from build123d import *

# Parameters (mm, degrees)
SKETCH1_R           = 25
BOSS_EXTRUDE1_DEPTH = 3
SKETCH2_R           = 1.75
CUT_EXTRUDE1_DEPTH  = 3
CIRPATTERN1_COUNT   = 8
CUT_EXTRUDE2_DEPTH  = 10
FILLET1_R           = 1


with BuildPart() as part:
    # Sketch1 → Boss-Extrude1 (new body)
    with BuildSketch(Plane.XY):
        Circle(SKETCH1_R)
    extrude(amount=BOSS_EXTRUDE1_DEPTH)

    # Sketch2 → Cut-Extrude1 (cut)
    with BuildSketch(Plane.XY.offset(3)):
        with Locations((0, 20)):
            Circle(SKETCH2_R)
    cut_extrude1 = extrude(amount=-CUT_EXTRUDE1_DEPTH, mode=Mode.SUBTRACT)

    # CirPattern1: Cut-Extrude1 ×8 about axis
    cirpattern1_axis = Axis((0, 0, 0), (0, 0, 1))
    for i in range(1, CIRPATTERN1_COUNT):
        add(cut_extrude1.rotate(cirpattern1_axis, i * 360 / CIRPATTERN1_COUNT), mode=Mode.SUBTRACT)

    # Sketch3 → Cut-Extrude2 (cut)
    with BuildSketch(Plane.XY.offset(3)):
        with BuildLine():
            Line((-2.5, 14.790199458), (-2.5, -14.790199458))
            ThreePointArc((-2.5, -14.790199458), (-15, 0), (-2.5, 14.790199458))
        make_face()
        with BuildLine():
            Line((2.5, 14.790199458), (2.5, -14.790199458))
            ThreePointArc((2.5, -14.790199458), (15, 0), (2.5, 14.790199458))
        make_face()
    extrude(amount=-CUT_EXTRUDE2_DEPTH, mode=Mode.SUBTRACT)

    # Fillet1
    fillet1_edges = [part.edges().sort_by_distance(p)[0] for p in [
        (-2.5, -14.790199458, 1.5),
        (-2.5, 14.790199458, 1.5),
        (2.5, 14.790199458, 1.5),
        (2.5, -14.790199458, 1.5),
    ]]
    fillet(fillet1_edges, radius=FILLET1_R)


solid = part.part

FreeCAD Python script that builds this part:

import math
import FreeCAD as App
import Part
import Sketcher
from FreeCAD import Vector
Q = App.Units.Quantity


def edges_at(feature, points):
    """Names of the edges that pass closest to the given points."""
    edges = feature.Shape.Edges
    near = lambda p: min(range(len(edges)), key=lambda i: edges[i].distToShape(Part.Vertex(*p))[0])
    return sorted({f"Edge{near(p) + 1}" for p in points})

doc = App.newDocument("Part")
body = doc.addObject("PartDesign::Body", "Body")

# Sketch on XY plane
sketch1 = body.newObject("Sketcher::SketchObject", "Sketch")
sketch1.AttachmentSupport = (doc.getObject("XY_Plane"), [""])
sketch1.MapMode = "FlatFace"
sketch1.addGeometry(Part.Circle(Vector(0, 0, 0), Vector(0, 0, 1), 25), False)
sketch1.addConstraint([
    Sketcher.Constraint("Coincident", 0, 3, -1, 1),
    Sketcher.Constraint("Diameter", 0, Q("50 mm")),
])
pad1 = body.newObject("PartDesign::Pad", "Pad")
pad1.Profile = sketch1
pad1.Length = 3

# Sketch on XY plane
sketch2 = body.newObject("Sketcher::SketchObject", "Sketch001")
sketch2.AttachmentSupport = (doc.getObject("XY_Plane"), [""])
sketch2.MapMode = "FlatFace"
sketch2.AttachmentOffset = App.Placement(Vector(0, 0, 3), App.Rotation())
sketch2.addGeometry(Part.Circle(Vector(0, 20, 0), Vector(0, 0, 1), 1.75), False)
sketch2.addConstraint([
    Sketcher.Constraint("PointOnObject", 0, 3, -2),
    Sketcher.Constraint("Diameter", 0, Q("3.5 mm")),
    Sketcher.Constraint("DistanceY", -1, 1, 0, 3, Q("20 mm")),
])
pocket1 = body.newObject("PartDesign::Pocket", "Pocket")
pocket1.Profile = sketch2
pocket1.Length = 3
doc.recompute()

polarpattern = body.newObject("PartDesign::PolarPattern", "PolarPattern")
polarpattern.Originals = [pocket1]
polarpattern.Axis = (doc.getObject("Z_Axis"), [""])
polarpattern.Angle = 360
polarpattern.Occurrences = 8
body.Tip = polarpattern

# Sketch on XY plane
sketch3 = body.newObject("Sketcher::SketchObject", "Sketch002")
sketch3.AttachmentSupport = (doc.getObject("XY_Plane"), [""])
sketch3.MapMode = "FlatFace"
sketch3.AttachmentOffset = App.Placement(Vector(0, 0, 3), App.Rotation())
sketch3.addGeometry([
    Part.LineSegment(Vector(-2.5, -14.790199, 0), Vector(-2.5, 14.790199, 0)),
    Part.ArcOfCircle(Part.Circle(Vector(0, 0, 0), Vector(0, 0, 1), 15), math.radians(99.594068), math.radians(260.405932)),
    Part.LineSegment(Vector(2.5, 14.790199, 0), Vector(2.5, -14.790199, 0)),
    Part.ArcOfCircle(Part.Circle(Vector(0, 0, 0), Vector(0, 0, 1), 15), math.radians(-80.405932), math.radians(80.405932)),
], False)
sketch3.addConstraint([
    Sketcher.Constraint("Coincident", 0, 1, 1, 2),
    Sketcher.Constraint("Coincident", 1, 1, 0, 2),
    Sketcher.Constraint("Coincident", 2, 1, 3, 2),
    Sketcher.Constraint("Coincident", 3, 1, 2, 2),
    Sketcher.Constraint("Vertical", 0),
    Sketcher.Constraint("Vertical", 2),
    Sketcher.Constraint("Coincident", 1, 3, -1, 1),
    Sketcher.Constraint("Coincident", 3, 3, -1, 1),
    Sketcher.Constraint("Equal", 1, 3),
    Sketcher.Constraint("Horizontal", 1, 1, 2, 1),
    Sketcher.Constraint("Radius", 1, Q("15 mm")),
    Sketcher.Constraint("DistanceX", 1, 1, 2, 1, Q("5 mm")),
])
pocket2 = body.newObject("PartDesign::Pocket", "Pocket001")
pocket2.Profile = sketch3
pocket2.Length = 10
doc.recompute()

fillet = body.newObject("PartDesign::Fillet", "Fillet")
fillet.Base = (pocket2, edges_at(pocket2, [
    (-2.5, -14.79, 1.5),
    (-2.5, 14.79, 1.5),
    (2.5, 14.79, 1.5),
    (2.5, -14.79, 1.5),
]))
fillet.Radius = 1

doc.recompute()
